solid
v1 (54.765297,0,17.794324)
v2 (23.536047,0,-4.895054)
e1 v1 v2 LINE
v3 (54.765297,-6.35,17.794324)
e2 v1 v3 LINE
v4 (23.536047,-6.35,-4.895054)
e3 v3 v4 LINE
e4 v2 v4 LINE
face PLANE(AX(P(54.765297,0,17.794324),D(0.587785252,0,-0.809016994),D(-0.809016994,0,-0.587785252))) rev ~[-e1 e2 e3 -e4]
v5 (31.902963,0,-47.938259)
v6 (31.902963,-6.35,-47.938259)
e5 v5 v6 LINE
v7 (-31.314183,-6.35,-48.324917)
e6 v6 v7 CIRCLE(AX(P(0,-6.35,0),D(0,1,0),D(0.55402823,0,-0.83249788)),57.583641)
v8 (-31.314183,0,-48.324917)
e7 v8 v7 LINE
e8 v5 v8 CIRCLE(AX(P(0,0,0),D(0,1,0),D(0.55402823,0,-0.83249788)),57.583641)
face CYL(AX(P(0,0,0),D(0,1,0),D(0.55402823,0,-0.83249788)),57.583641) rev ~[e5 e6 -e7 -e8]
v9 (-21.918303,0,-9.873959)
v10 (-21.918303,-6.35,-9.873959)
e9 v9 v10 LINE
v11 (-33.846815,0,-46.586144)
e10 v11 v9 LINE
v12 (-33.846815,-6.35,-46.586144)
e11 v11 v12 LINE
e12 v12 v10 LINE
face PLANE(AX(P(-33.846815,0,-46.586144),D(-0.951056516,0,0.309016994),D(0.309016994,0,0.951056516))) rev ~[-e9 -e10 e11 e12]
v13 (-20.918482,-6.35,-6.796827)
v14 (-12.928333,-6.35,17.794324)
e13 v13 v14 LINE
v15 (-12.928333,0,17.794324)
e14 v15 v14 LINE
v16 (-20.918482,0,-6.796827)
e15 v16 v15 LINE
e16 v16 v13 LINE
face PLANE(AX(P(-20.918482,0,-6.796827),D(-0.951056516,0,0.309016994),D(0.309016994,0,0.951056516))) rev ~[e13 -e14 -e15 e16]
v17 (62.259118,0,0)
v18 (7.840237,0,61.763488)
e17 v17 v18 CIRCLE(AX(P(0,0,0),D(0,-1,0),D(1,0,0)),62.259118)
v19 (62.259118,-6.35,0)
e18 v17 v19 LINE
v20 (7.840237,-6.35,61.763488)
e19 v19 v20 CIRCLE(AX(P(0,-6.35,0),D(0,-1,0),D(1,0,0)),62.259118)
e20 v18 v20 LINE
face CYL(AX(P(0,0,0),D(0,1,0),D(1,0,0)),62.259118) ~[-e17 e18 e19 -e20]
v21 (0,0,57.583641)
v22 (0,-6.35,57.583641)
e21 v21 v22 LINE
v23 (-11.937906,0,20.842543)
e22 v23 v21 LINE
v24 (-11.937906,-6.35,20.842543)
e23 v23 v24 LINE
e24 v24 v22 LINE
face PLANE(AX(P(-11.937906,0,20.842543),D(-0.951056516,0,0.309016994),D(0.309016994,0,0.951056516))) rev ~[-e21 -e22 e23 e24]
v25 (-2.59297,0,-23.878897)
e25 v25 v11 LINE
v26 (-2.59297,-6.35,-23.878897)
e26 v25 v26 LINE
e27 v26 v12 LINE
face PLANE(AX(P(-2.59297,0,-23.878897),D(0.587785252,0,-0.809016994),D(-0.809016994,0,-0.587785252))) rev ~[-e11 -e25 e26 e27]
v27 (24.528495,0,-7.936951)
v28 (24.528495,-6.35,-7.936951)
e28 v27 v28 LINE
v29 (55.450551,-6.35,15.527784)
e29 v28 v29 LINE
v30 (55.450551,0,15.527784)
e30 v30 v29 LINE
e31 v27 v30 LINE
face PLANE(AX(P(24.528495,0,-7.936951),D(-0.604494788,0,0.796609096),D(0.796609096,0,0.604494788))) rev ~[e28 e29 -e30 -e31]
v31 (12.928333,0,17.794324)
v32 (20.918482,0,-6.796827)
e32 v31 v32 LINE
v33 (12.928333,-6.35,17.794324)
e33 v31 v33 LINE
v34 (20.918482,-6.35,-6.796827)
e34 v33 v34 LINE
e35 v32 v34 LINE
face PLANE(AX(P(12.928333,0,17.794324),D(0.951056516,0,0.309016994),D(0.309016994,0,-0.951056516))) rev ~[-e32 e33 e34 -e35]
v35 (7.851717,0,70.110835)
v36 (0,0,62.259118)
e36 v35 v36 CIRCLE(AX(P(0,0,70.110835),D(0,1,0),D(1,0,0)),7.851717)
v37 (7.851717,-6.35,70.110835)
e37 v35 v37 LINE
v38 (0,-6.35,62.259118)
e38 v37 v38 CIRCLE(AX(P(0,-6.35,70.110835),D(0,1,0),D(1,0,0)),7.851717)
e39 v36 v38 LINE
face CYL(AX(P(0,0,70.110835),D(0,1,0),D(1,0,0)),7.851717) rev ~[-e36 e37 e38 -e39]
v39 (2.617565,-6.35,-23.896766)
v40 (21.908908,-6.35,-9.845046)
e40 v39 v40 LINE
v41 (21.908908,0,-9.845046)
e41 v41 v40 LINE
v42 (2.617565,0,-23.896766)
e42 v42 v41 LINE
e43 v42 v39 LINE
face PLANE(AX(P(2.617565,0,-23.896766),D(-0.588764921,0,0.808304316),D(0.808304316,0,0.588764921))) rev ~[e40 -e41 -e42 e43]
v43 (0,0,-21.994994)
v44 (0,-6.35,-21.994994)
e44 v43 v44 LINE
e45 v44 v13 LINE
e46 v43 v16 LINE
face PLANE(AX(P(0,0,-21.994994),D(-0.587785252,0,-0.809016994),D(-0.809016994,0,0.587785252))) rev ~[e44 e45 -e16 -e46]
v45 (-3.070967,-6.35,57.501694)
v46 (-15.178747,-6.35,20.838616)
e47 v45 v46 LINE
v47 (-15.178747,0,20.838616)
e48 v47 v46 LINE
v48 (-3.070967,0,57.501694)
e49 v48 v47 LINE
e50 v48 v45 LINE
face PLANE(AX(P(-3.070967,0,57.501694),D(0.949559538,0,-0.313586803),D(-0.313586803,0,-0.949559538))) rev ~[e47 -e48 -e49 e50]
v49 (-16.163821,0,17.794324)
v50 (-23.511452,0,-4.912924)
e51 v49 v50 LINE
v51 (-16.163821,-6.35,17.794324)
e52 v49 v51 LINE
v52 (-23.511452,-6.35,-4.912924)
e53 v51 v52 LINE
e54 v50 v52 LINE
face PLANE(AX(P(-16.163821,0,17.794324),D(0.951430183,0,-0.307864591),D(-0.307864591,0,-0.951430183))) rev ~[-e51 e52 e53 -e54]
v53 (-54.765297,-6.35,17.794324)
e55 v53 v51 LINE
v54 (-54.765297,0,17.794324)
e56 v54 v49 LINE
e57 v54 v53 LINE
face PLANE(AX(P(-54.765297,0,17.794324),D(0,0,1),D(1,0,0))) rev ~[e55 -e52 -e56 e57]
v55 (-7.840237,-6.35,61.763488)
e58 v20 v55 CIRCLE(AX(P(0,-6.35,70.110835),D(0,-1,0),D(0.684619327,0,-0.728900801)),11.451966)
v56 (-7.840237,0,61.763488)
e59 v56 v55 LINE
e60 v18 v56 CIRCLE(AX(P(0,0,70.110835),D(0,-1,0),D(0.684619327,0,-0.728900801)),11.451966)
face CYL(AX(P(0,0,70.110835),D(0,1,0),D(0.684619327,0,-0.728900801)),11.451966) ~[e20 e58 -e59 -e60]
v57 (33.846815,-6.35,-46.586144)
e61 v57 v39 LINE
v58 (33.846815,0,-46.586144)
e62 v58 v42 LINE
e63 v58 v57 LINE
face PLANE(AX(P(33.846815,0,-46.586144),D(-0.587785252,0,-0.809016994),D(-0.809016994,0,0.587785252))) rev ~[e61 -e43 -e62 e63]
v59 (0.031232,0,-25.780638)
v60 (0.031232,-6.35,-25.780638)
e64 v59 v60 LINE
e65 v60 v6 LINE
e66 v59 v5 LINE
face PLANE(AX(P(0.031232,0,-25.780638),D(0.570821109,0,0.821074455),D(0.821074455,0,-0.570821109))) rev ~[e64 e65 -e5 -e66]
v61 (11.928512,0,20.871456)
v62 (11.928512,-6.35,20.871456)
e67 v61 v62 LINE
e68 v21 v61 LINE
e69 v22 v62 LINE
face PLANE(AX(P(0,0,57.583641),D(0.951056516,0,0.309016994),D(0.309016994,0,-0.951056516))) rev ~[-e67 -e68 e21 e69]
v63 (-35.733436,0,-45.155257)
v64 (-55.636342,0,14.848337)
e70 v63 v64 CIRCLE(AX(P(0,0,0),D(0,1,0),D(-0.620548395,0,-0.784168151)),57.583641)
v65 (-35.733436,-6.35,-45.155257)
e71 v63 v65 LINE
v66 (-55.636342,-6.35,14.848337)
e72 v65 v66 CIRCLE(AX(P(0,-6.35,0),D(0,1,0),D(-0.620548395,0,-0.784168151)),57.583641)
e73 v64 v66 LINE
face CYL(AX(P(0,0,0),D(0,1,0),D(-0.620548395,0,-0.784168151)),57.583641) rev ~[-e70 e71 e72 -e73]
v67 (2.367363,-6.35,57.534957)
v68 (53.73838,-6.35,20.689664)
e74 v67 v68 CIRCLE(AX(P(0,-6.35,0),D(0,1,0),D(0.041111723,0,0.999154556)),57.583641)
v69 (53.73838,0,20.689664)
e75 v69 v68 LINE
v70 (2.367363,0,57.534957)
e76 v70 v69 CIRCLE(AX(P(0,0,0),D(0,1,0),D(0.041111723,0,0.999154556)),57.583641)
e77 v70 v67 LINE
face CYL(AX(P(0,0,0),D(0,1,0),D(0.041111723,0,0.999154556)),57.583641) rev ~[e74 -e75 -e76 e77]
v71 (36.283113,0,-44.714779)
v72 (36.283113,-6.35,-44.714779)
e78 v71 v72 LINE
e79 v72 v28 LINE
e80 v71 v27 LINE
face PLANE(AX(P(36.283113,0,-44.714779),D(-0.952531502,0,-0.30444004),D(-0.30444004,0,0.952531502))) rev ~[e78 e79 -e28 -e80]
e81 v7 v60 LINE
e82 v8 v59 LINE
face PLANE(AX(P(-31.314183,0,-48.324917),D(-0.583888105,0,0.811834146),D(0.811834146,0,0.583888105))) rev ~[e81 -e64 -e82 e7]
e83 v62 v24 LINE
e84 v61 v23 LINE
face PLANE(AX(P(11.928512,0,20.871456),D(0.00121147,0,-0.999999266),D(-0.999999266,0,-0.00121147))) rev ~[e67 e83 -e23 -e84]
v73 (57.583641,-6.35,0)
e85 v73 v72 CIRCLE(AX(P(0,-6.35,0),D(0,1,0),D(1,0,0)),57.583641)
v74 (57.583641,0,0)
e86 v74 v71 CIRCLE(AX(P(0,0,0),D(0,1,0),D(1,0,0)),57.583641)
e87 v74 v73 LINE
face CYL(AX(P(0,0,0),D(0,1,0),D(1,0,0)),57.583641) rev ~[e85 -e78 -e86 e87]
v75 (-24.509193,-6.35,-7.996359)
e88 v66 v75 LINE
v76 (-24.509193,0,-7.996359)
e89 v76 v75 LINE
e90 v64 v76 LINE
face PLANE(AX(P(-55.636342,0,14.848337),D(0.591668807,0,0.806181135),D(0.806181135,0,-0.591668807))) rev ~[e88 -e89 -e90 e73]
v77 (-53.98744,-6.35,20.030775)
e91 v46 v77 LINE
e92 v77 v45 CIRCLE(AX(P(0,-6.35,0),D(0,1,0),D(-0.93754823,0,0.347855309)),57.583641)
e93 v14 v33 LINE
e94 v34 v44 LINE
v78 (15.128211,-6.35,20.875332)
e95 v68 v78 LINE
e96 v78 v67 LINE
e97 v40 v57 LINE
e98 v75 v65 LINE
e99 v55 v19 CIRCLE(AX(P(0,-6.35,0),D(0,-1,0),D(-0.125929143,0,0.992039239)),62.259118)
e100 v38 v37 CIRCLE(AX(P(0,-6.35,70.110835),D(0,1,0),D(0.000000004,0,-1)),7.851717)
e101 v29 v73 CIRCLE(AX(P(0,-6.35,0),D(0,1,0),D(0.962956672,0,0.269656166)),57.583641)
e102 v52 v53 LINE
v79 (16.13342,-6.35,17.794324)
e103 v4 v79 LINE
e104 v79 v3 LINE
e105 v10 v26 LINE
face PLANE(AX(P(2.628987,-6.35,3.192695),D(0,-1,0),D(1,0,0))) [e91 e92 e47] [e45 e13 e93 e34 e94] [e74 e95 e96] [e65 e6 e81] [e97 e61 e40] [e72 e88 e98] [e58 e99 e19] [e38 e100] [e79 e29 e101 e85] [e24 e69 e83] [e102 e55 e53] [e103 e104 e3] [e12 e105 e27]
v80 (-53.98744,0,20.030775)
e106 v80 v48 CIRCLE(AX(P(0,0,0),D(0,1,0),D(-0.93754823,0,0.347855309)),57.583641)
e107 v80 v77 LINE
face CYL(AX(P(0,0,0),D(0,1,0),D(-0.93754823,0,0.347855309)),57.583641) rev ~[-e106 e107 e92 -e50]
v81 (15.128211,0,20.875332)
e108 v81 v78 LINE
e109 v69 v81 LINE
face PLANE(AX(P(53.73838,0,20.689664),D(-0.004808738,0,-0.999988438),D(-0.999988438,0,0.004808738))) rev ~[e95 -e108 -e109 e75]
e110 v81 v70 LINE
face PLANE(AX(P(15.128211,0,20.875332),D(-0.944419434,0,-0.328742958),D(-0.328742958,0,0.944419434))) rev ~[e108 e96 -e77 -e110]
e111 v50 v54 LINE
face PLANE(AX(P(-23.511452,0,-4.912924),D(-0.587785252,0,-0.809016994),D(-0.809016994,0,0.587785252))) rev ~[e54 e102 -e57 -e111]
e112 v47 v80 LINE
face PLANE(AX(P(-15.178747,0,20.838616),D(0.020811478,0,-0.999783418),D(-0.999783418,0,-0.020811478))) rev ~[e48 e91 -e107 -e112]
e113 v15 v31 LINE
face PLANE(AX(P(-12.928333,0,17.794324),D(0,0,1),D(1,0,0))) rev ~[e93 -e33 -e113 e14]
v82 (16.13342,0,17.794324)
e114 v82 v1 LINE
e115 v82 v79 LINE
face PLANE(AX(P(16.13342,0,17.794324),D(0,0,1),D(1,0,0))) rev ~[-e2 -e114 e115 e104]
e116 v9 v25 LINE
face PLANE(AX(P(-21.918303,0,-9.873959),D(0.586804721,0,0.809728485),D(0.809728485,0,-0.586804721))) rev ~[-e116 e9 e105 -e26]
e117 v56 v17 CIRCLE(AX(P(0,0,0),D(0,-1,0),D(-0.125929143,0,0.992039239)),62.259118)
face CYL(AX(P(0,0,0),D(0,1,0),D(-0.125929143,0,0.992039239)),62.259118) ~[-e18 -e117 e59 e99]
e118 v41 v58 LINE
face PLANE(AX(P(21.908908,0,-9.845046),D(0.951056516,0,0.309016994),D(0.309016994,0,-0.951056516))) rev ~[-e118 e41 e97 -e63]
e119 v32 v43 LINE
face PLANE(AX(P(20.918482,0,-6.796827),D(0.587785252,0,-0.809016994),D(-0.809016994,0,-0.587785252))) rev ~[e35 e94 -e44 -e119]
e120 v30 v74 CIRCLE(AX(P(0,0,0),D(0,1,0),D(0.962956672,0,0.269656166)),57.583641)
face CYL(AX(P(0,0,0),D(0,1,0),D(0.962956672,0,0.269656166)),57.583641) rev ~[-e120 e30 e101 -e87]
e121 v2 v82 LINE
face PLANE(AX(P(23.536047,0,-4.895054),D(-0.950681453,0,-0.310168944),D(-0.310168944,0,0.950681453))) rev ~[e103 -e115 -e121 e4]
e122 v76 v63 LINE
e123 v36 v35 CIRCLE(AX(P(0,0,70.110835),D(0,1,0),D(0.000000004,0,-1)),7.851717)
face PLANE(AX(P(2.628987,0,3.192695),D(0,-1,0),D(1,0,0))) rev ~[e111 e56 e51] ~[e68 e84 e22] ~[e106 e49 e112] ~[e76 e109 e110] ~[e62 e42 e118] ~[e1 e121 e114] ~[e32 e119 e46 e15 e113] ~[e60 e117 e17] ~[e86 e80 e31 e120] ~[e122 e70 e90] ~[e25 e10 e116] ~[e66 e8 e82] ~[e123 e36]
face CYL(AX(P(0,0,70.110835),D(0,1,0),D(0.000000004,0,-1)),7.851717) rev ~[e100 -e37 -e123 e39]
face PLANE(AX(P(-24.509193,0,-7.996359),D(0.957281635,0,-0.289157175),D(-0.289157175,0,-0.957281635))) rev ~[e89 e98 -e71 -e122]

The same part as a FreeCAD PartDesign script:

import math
import FreeCAD as App
import Part
import Sketcher
Q = App.Units.Quantity

doc = App.newDocument("Part")
body = doc.addObject("PartDesign::Body", "Body")

# Sketch on XZ plane
sketch1 = body.newObject("Sketcher::SketchObject", "Sketch")
sketch1.AttachmentSupport = (doc.getObject("XZ_Plane"), [""])
sketch1.MapMode = "FlatFace"
sketch1.addGeometry(Part.ArcOfCircle(Part.Circle(App.Vector(0, 0, 0), App.Vector(0, 0, 1), 62), math.radians(97), math.radians(360)), False)
sketch1.addGeometry(Part.ArcOfCircle(Part.Circle(App.Vector(0, 0, 0), App.Vector(0, 0, 1), 62), math.radians(0), math.radians(83)), False)
sketch1.addGeometry(Part.ArcOfCircle(Part.Circle(App.Vector(0, 70, 0), App.Vector(0, 0, 1), 11), math.radians(-47), math.radians(227)), False)
sketch1.addGeometry(Part.LineSegment(App.Vector(-22, -10, 0), App.Vector(-3, -24, 0)), False)
sketch1.addGeometry(Part.LineSegment(App.Vector(-3, -24, 0), App.Vector(-34, -47, 0)), False)
sketch1.addGeometry(Part.LineSegment(App.Vector(-34, -47, 0), App.Vector(-22, -10, 0)), False)
sketch1.addGeometry(Part.LineSegment(App.Vector(-56, 15, 0), App.Vector(-25, -8, 0)), False)
sketch1.addGeometry(Part.LineSegment(App.Vector(-25, -8, 0), App.Vector(-36, -45, 0)), False)
sketch1.addGeometry(Part.ArcOfCircle(Part.Circle(App.Vector(0, 0, 0), App.Vector(0, 0, 1), 58), math.radians(165), math.radians(232)), False)
sketch1.addGeometry(Part.LineSegment(App.Vector(-16, 18, 0), App.Vector(-24, -5, 0)), False)
sketch1.addGeometry(Part.LineSegment(App.Vector(-24, -5, 0), App.Vector(-55, 18, 0)), False)
sketch1.addGeometry(Part.LineSegment(App.Vector(-55, 18, 0), App.Vector(-16, 18, 0)), False)
sketch1.addGeometry(Part.LineSegment(App.Vector(21, -7, 0), App.Vector(0, -22, 0)), False)
sketch1.addGeometry(Part.LineSegment(App.Vector(0, -22, 0), App.Vector(-21, -7, 0)), False)
sketch1.addGeometry(Part.LineSegment(App.Vector(-21, -7, 0), App.Vector(-13, 18, 0)), False)
sketch1.addGeometry(Part.LineSegment(App.Vector(-13, 18, 0), App.Vector(13, 18, 0)), False)
sketch1.addGeometry(Part.LineSegment(App.Vector(13, 18, 0), App.Vector(21, -7, 0)), False)
sketch1.addGeometry(Part.LineSegment(App.Vector(-31, -48, 0), App.Vector(0, -26, 0)), False)
sketch1.addGeometry(Part.LineSegment(App.Vector(0, -26, 0), App.Vector(32, -48, 0)), False)
sketch1.addGeometry(Part.ArcOfCircle(Part.Circle(App.Vector(0, 0, 0), App.Vector(0, 0, 1), 58), math.radians(-123), math.radians(-56)), False)
sketch1.addGeometry(Part.LineSegment(App.Vector(34, -47, 0), App.Vector(3, -24, 0)), False)
sketch1.addGeometry(Part.LineSegment(App.Vector(3, -24, 0), App.Vector(22, -10, 0)), False)
sketch1.addGeometry(Part.LineSegment(App.Vector(22, -10, 0), App.Vector(34, -47, 0)), False)
sketch1.addGeometry(Part.LineSegment(App.Vector(36, -45, 0), App.Vector(25, -8, 0)), False)
sketch1.addGeometry(Part.LineSegment(App.Vector(25, -8, 0), App.Vector(55, 16, 0)), False)
sketch1.addGeometry(Part.ArcOfCircle(Part.Circle(App.Vector(0, 0, 0), App.Vector(0, 0, 1), 58), math.radians(0), math.radians(15.64)), False)
sketch1.addGeometry(Part.ArcOfCircle(Part.Circle(App.Vector(0, 0, 0), App.Vector(0, 0, 1), 58), math.radians(-51), math.radians(0)), False)
sketch1.addGeometry(Part.LineSegment(App.Vector(24, -5, 0), App.Vector(16, 18, 0)), False)
sketch1.addGeometry(Part.LineSegment(App.Vector(16, 18, 0), App.Vector(55, 18, 0)), False)
sketch1.addGeometry(Part.LineSegment(App.Vector(55, 18, 0), App.Vector(24, -5, 0)), False)
sketch1.addGeometry(Part.LineSegment(App.Vector(-3, 58, 0), App.Vector(-15, 21, 0)), False)
sketch1.addGeometry(Part.LineSegment(App.Vector(-15, 21, 0), App.Vector(-54, 20, 0)), False)
sketch1.addGeometry(Part.ArcOfCircle(Part.Circle(App.Vector(0, 0, 0), App.Vector(0, 0, 1), 58), math.radians(93), math.radians(160)), False)
sketch1.addGeometry(Part.LineSegment(App.Vector(12, 21, 0), App.Vector(-12, 21, 0)), False)
sketch1.addGeometry(Part.LineSegment(App.Vector(-12, 21, 0), App.Vector(0, 58, 0)), False)
sketch1.addGeometry(Part.LineSegment(App.Vector(0, 58, 0), App.Vector(12, 21, 0)), False)
sketch1.addGeometry(Part.LineSegment(App.Vector(54, 21, 0), App.Vector(15, 21, 0)), False)
sketch1.addGeometry(Part.LineSegment(App.Vector(15, 21, 0), App.Vector(2, 58, 0)), False)
sketch1.addGeometry(Part.ArcOfCircle(Part.Circle(App.Vector(0, 0, 0), App.Vector(0, 0, 1), 58), math.radians(21), math.radians(88)), False)
sketch1.addGeometry(Part.ArcOfCircle(Part.Circle(App.Vector(0, 70, 0), App.Vector(0, 0, 1), 8), math.radians(-90), math.radians(0)), False)
sketch1.addGeometry(Part.ArcOfCircle(Part.Circle(App.Vector(0, 70, 0), App.Vector(0, 0, 1), 8), math.radians(0), math.radians(270)), False)
sketch1.addConstraint(Sketcher.Constraint("Tangent", 0, 2, 1, 1))
sketch1.addConstraint(Sketcher.Constraint("Coincident", 1, 2, 2, 1))
sketch1.addConstraint(Sketcher.Constraint("Coincident", 2, 2, 0, 1))
sketch1.addConstraint(Sketcher.Constraint("Coincident", 3, 2, 4, 1))
sketch1.addConstraint(Sketcher.Constraint("Coincident", 4, 2, 5, 1))
sketch1.addConstraint(Sketcher.Constraint("Coincident", 5, 2, 3, 1))
sketch1.addConstraint(Sketcher.Constraint("Coincident", 6, 2, 7, 1))
sketch1.addConstraint(Sketcher.Constraint("Coincident", 7, 2, 8, 2))
sketch1.addConstraint(Sketcher.Constraint("Coincident", 8, 1, 6, 1))
sketch1.addConstraint(Sketcher.Constraint("Coincident", 9, 2, 10, 1))
sketch1.addConstraint(Sketcher.Constraint("Coincident", 10, 2, 11, 1))
sketch1.addConstraint(Sketcher.Constraint("Coincident", 11, 2, 9, 1))
sketch1.addConstraint(Sketcher.Constraint("Coincident", 12, 2, 13, 1))
sketch1.addConstraint(Sketcher.Constraint("Coincident", 13, 2, 14, 1))
sketch1.addConstraint(Sketcher.Constraint("Coincident", 14, 2, 15, 1))
sketch1.addConstraint(Sketcher.Constraint("Coincident", 15, 2, 16, 1))
sketch1.addConstraint(Sketcher.Constraint("Coincident", 16, 2, 12, 1))
sketch1.addConstraint(Sketcher.Constraint("Coincident", 17, 2, 18, 1))
sketch1.addConstraint(Sketcher.Constraint("Coincident", 18, 2, 19, 2))
sketch1.addConstraint(Sketcher.Constraint("Coincident", 19, 1, 17, 1))
sketch1.addConstraint(Sketcher.Constraint("Coincident", 20, 2, 21, 1))
sketch1.addConstraint(Sketcher.Constraint("Coincident", 21, 2, 22, 1))
sketch1.addConstraint(Sketcher.Constraint("Coincident", 22, 2, 20, 1))
sketch1.addConstraint(Sketcher.Constraint("Coincident", 23, 2, 24, 1))
sketch1.addConstraint(Sketcher.Constraint("Coincident", 24, 2, 25, 2))
sketch1.addConstraint(Sketcher.Constraint("Tangent", 25, 1, 26, 2))
sketch1.addConstraint(Sketcher.Constraint("Coincident", 26, 1, 23, 1))
sketch1.addConstraint(Sketcher.Constraint("Coincident", 27, 2, 28, 1))
sketch1.addConstraint(Sketcher.Constraint("Coincident", 28, 2, 29, 1))
sketch1.addConstraint(Sketcher.Constraint("Coincident", 29, 2, 27, 1))
sketch1.addConstraint(Sketcher.Constraint("Coincident", 30, 2, 31, 1))
sketch1.addConstraint(Sketcher.Constraint("Coincident", 31, 2, 32, 2))
sketch1.addConstraint(Sketcher.Constraint("Coincident", 32, 1, 30, 1))
sketch1.addConstraint(Sketcher.Constraint("Coincident", 33, 2, 34, 1))
sketch1.addConstraint(Sketcher.Constraint("Coincident", 34, 2, 35, 1))
sketch1.addConstraint(Sketcher.Constraint("Coincident", 35, 2, 33, 1))
sketch1.addConstraint(Sketcher.Constraint("Coincident", 36, 2, 37, 1))
sketch1.addConstraint(Sketcher.Constraint("Coincident", 37, 2, 38, 2))
sketch1.addConstraint(Sketcher.Constraint("Coincident", 38, 1, 36, 1))
sketch1.addConstraint(Sketcher.Constraint("Tangent", 39, 1, 40, 2))
sketch1.addConstraint(Sketcher.Constraint("Coincident", 40, 1, 39, 2))
sketch1.addConstraint(Sketcher.Constraint("Horizontal", 11))
sketch1.addConstraint(Sketcher.Constraint("Horizontal", 15))
sketch1.addConstraint(Sketcher.Constraint("Horizontal", 28))
sketch1.addConstraint(Sketcher.Constraint("Coincident", 0, 3, -1, 1))
sketch1.addConstraint(Sketcher.Constraint("Coincident", 8, 3, -1, 1))
sketch1.addConstraint(Sketcher.Constraint("Coincident", 19, 3, -1, 1))
sketch1.addConstraint(Sketcher.Constraint("Coincident", 25, 3, -1, 1))
sketch1.addConstraint(Sketcher.Constraint("Coincident", 32, 3, -1, 1))
sketch1.addConstraint(Sketcher.Constraint("Coincident", 38, 3, -1, 1))
sketch1.addConstraint(Sketcher.Constraint("Coincident", 39, 3, 2, 3))
sketch1.addConstraint(Sketcher.Constraint("Equal", 0, 1))
sketch1.addConstraint(Sketcher.Constraint("Equal", 8, 19))
sketch1.addConstraint(Sketcher.Constraint("Equal", 19, 25))
sketch1.addConstraint(Sketcher.Constraint("Equal", 25, 26))
sketch1.addConstraint(Sketcher.Constraint("Equal", 26, 32))
sketch1.addConstraint(Sketcher.Constraint("Equal", 32, 38))
sketch1.addConstraint(Sketcher.Constraint("Symmetric", 13, 2, 16, 2, -2))
sketch1.addConstraint(Sketcher.Constraint("Symmetric", 4, 2, 22, 2, -2))
sketch1.addConstraint(Sketcher.Constraint("Symmetric", 10, 2, 28, 2, -2))
sketch1.addConstraint(Sketcher.Constraint("PointOnObject", 2, 3, -2))
sketch1.addConstraint(Sketcher.Constraint("PointOnObject", 0, 2, -1))
sketch1.addConstraint(Sketcher.Constraint("PointOnObject", 12, 2, -2))
sketch1.addConstraint(Sketcher.Constraint("PointOnObject", 25, 1, -1))
sketch1.addConstraint(Sketcher.Constraint("PointOnObject", 34, 2, -2))
sketch1.addConstraint(Sketcher.Constraint("PointOnObject", 39, 1, -2))
sketch1.addConstraint(Sketcher.Constraint("Parallel", 4, 12))
sketch1.addConstraint(Sketcher.Constraint("Parallel", 10, 13))
sketch1.addConstraint(Sketcher.Constraint("Parallel", 5, 14))
sketch1.addConstraint(Sketcher.Constraint("Parallel", 13, 20))
sketch1.addConstraint(Sketcher.Constraint("Parallel", 16, 22))
sketch1.addConstraint(Sketcher.Constraint("Parallel", 12, 29))
sketch1.addConstraint(Sketcher.Constraint("Parallel", 14, 34))
sketch1.addConstraint(Sketcher.Constraint("Parallel", 22, 35))
sketch1.addConstraint(Sketcher.Constraint("Horizontal", 11, 2, 14, 2))
sketch1.addConstraint(Sketcher.Constraint("Horizontal", 39, 3, 40, 1))
sketch1.addConstraint(Sketcher.Constraint("Equal", 3, 9))
sketch1.addConstraint(Sketcher.Constraint("Equal", 4, 10))
sketch1.addConstraint(Sketcher.Constraint("Equal", 13, 14))
sketch1.addConstraint(Sketcher.Constraint("Equal", 14, 16))
sketch1.addConstraint(Sketcher.Constraint("Equal", 6, 17))
sketch1.addConstraint(Sketcher.Constraint("Equal", 7, 18))
sketch1.addConstraint(Sketcher.Constraint("Equal", 5, 20))
sketch1.addConstraint(Sketcher.Constraint("Equal", 9, 21))
sketch1.addConstraint(Sketcher.Constraint("Equal", 17, 23))
sketch1.addConstraint(Sketcher.Constraint("Equal", 18, 24))
sketch1.addConstraint(Sketcher.Constraint("Equal", 21, 27))
sketch1.addConstraint(Sketcher.Constraint("Equal", 20, 29))
sketch1.addConstraint(Sketcher.Constraint("Equal", 23, 30))
sketch1.addConstraint(Sketcher.Constraint("Equal", 24, 31))
sketch1.addConstraint(Sketcher.Constraint("Equal", 27, 33))
sketch1.addConstraint(Sketcher.Constraint("Equal", 22, 34))
sketch1.addConstraint(Sketcher.Constraint("Equal", 29, 35))
sketch1.addConstraint(Sketcher.Constraint("Equal", 30, 36))
sketch1.addConstraint(Sketcher.Constraint("Equal", 31, 37))
sketch1.addConstraint(Sketcher.Constraint("Angle", 4, Q("-144 deg")))
sketch1.addConstraint(Sketcher.Constraint("Radius", 8, Q("57.583641 mm")))
sketch1.addConstraint(Sketcher.Constraint("DistanceY", 4, 2, -1, 1, Q("1.8341002 in")))
sketch1.addConstraint(Sketcher.Constraint("Radius", 0, Q("62.259118 mm")))
sketch1.addConstraint(Sketcher.Constraint("Radius", 2, Q("11.451966 mm")))
sketch1.addConstraint(Sketcher.Constraint("Radius", 39, Q("7.851717 mm")))
sketch1.addConstraint(Sketcher.Constraint("DistanceY", 22, 2, 21, 2, Q("1.4464999 in")))
sketch1.addConstraint(Sketcher.Constraint("DistanceY", 32, 1, 39, 1, Q("0.1873001 in")))
sketch1.addConstraint(Sketcher.Constraint("Distance", 7, Q("38.817101 mm")))
sketch1.addConstraint(Sketcher.Constraint("DistanceY", 5, 2, 6, 2, Q("1.8776 mm")))
sketch1.addConstraint(Sketcher.Constraint("DistanceX", 23, 2, 28, 2, Q("30.236801 mm")))
sketch1.addConstraint(Sketcher.Constraint("DistanceX", 8, 1, 31, 2, Q("1.648902 mm")))
sketch1.addConstraint(Sketcher.Constraint("DistanceY", 9, 2, 31, 2, Q("24.943699 mm")))
sketch1.addConstraint(Sketcher.Constraint("DistanceX", 35, 2, 36, 2, Q("3.199699 mm")))
sketch1.addConstraint(Sketcher.Constraint("DistanceX", 2, 2, 37, 2, Q("10.2076 mm")))
sketch1.addConstraint(Sketcher.Constraint("DistanceX", 11, 1, 11, 2, Q("38.601475 mm")))
sketch1.addConstraint(Sketcher.Constraint("DistanceX", 15, 1, 15, 2, Q("25.856666 mm")))
sketch1.addConstraint(Sketcher.Constraint("DistanceX", 3, 2, -1, 1, Q("2.59297 mm")))
sketch1.addConstraint(Sketcher.Constraint("DistanceX", 9, 2, -1, 1, Q("23.511452 mm")))
sketch1.addConstraint(Sketcher.Constraint("DistanceY", 17, 2, -1, 1, Q("25.780638 mm")))
sketch1.addConstraint(Sketcher.Constraint("DistanceY", 18, 2, -1, 1, Q("47.938259 mm")))
sketch1.addConstraint(Sketcher.Constraint("DistanceY", 23, 2, -1, 1, Q("7.936951 mm")))
sketch1.addConstraint(Sketcher.Constraint("DistanceY", 26, 1, -1, 1, Q("44.714779 mm")))
sketch1.addConstraint(Sketcher.Constraint("DistanceX", 31, 2, -1, 1, Q("53.98744 mm")))
sketch1.addConstraint(Sketcher.Constraint("DistanceY", -1, 1, 34, 2, Q("57.583641 mm")))
sketch1.addConstraint(Sketcher.Constraint("DistanceY", 31, 2, 30, 2, Q("0.807841 mm")))
pad1 = body.newObject("PartDesign::Pad", "Pad")
pad1.Profile = sketch1
pad1.Length = Q("0.25 in")

doc.recompute()
